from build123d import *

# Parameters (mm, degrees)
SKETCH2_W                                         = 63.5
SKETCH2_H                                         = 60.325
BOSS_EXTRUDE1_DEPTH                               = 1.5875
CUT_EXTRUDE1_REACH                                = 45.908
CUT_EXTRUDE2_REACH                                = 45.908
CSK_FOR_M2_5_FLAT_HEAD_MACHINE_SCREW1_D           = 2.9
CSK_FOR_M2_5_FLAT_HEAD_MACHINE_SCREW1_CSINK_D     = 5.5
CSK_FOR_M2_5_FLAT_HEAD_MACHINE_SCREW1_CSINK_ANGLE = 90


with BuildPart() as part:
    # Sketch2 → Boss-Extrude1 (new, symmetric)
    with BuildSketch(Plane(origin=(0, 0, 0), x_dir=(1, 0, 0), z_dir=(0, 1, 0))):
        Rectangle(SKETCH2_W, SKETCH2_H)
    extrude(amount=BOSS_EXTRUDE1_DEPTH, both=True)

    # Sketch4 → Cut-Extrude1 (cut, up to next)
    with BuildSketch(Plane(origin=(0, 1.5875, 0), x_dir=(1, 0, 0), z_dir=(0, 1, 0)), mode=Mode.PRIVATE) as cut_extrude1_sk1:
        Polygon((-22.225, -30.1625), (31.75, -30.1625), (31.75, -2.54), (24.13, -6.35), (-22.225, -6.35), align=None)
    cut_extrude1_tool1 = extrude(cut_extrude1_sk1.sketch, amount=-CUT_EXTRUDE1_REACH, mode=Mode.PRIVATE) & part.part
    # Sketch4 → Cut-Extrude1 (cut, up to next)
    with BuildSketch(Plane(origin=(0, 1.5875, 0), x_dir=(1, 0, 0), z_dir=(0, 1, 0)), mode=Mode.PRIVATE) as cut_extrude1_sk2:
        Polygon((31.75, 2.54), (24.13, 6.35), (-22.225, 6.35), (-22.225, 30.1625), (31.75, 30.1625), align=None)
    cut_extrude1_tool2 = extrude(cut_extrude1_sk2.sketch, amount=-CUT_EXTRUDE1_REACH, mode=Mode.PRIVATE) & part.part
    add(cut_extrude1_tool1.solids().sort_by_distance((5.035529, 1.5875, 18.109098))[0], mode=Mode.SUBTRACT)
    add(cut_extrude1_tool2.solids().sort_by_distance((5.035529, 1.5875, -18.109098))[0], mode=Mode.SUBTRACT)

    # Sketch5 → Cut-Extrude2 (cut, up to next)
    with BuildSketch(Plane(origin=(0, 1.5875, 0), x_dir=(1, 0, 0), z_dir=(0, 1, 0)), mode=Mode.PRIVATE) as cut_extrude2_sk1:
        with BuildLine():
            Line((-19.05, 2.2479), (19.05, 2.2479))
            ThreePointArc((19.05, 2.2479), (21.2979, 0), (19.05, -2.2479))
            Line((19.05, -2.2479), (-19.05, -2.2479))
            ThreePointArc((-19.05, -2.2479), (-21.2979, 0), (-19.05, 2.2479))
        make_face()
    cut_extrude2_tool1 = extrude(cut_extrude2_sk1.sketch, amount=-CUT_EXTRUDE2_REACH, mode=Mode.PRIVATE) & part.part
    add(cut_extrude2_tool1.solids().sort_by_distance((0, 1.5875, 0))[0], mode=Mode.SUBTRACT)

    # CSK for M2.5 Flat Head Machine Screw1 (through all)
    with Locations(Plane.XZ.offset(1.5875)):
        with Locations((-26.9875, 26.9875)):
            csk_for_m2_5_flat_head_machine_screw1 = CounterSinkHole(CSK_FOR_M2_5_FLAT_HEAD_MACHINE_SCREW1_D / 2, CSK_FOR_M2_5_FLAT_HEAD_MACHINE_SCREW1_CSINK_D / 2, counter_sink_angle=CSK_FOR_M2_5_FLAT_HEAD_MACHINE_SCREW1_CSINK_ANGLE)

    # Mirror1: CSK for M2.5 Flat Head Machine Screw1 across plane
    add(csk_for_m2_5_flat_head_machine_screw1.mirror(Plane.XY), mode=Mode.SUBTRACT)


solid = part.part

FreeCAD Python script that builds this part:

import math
import FreeCAD as App
import Part
import Sketcher

V = App.Vector
Q = App.Units.Quantity

doc = App.newDocument("Part")
body = doc.addObject("PartDesign::Body", "Body")

sketch1 = doc.addObject("Sketcher::SketchObject", "Sketch")
body.addObject(sketch1)
sketch1.AttachmentSupport = (doc.XZ_Plane, [""])
sketch1.MapMode = "FlatFace"
sketch1.addGeometry([
    Part.LineSegment(V(-32, -30, 0), V(-32, 30, 0)),
    Part.LineSegment(V(-32, 30, 0), V(32, 30, 0)),
    Part.LineSegment(V(32, 30, 0), V(32, -30, 0)),
    Part.LineSegment(V(32, -30, 0), V(-32, -30, 0)),
], False)
sketch1.addConstraint([
    Sketcher.Constraint("Coincident", 0, 2, 1, 1),
    Sketcher.Constraint("Coincident", 1, 2, 2, 1),
    Sketcher.Constraint("Coincident", 2, 2, 3, 1),
    Sketcher.Constraint("Coincident", 3, 2, 0, 1),
    Sketcher.Constraint("Vertical", 0),
    Sketcher.Constraint("Horizontal", 1),
    Sketcher.Constraint("Vertical", 2),
    Sketcher.Constraint("Horizontal", 3),
    Sketcher.Constraint("Symmetric", 0, 2, 2, 2, -1, 1),
    Sketcher.Constraint("DistanceX", 1, 1, 1, 2, Q("2.5 in")),
    Sketcher.Constraint("DistanceY", 0, 1, 0, 2, Q("2.375 in")),
])
pad1 = doc.addObject("PartDesign::Pad", "Pad")
body.addObject(pad1)
pad1.Profile = sketch1
pad1.Length = Q("0.125 in")
pad1.Midplane = True

sketch2 = doc.addObject("Sketcher::SketchObject", "Sketch001")
body.addObject(sketch2)
sketch2.AttachmentSupport = (doc.XZ_Plane, [""])
sketch2.MapMode = "FlatFace"
sketch2.AttachmentOffset = App.Placement(V(0, 0, -0.0625 * 25.4), App.Rotation())
sketch2.addGeometry([
    Part.LineSegment(V(-22, 30, 0), V(32, 30, 0)),
    Part.LineSegment(V(32, 30, 0), V(32, 3, 0)),
    Part.LineSegment(V(32, 3, 0), V(24, 6, 0)),
    Part.LineSegment(V(24, 6, 0), V(-22, 6, 0)),
    Part.LineSegment(V(-22, 6, 0), V(-22, 30, 0)),
], False)
sketch2.addConstraint([
    Sketcher.Constraint("Coincident", 0, 2, 1, 1),
    Sketcher.Constraint("Coincident", 1, 2, 2, 1),
    Sketcher.Constraint("Coincident", 2, 2, 3, 1),
    Sketcher.Constraint("Coincident", 3, 2, 4, 1),
    Sketcher.Constraint("Coincident", 4, 2, 0, 1),
    Sketcher.Constraint("Horizontal", 0),
    Sketcher.Constraint("Vertical", 1),
    Sketcher.Constraint("Horizontal", 3),
    Sketcher.Constraint("Vertical", 4),
    Sketcher.Constraint("DistanceY", -1, 1, 1, 2, Q("0.1 in")),
    Sketcher.Constraint("DistanceX", 2, 2, 1, 2, Q("0.3 in")),
    Sketcher.Constraint("DistanceX", 0, 1, 0, 2, Q("2.125 in")),
    Sketcher.Constraint("DistanceY", 4, 1, 4, 2, Q("0.9375 in")),
    Sketcher.Constraint("DistanceX", -1, 1, 0, 2, Q("1.25 in")),
    Sketcher.Constraint("DistanceY", -1, 1, 2, 2, Q("0.25 in")),
])
pocket1 = doc.addObject("PartDesign::Pocket", "Pocket")
body.addObject(pocket1)
pocket1.Profile = sketch2
pocket1.Type = "UpToFirst"
pocket1.Reversed = True

sketch3 = doc.addObject("Sketcher::SketchObject", "Sketch002")
body.addObject(sketch3)
sketch3.AttachmentSupport = (doc.XZ_Plane, [""])
sketch3.MapMode = "FlatFace"
sketch3.AttachmentOffset = App.Placement(V(0, 0, -0.0625 * 25.4), App.Rotation())
sketch3.addGeometry([
    Part.LineSegment(V(24, -6, 0), V(32, -3, 0)),
    Part.LineSegment(V(32, -3, 0), V(32, -30, 0)),
    Part.LineSegment(V(32, -30, 0), V(-22, -30, 0)),
    Part.LineSegment(V(-22, -30, 0), V(-22, -6, 0)),
    Part.LineSegment(V(-22, -6, 0), V(24, -6, 0)),
], False)
sketch3.addConstraint([
    Sketcher.Constraint("Coincident", 0, 2, 1, 1),
    Sketcher.Constraint("Coincident", 1, 2, 2, 1),
    Sketcher.Constraint("Coincident", 2, 2, 3, 1),
    Sketcher.Constraint("Coincident", 3, 2, 4, 1),
    Sketcher.Constraint("Coincident", 4, 2, 0, 1),
    Sketcher.Constraint("Vertical", 1),
    Sketcher.Constraint("Horizontal", 2),
    Sketcher.Constraint("Vertical", 3),
    Sketcher.Constraint("Horizontal", 4),
    Sketcher.Constraint("DistanceY", 0, 2, -1, 1, Q("0.1 in")),
    Sketcher.Constraint("DistanceX", 4, 2, 0, 2, Q("0.3 in")),
    Sketcher.Constraint("DistanceX", 2, 2, 2, 1, Q("2.125 in")),
    Sketcher.Constraint("DistanceY", 3, 1, 3, 2, Q("0.9375 in")),
    Sketcher.Constraint("DistanceX", -1, 1, 0, 2, Q("1.25 in")),
    Sketcher.Constraint("DistanceY", 3, 2, -1, 1, Q("0.25 in")),
])
pocket2 = doc.addObject("PartDesign::Pocket", "Pocket001")
body.addObject(pocket2)
pocket2.Profile = sketch3
pocket2.Type = "UpToFirst"
pocket2.Reversed = True

sketch4 = doc.addObject("Sketcher::SketchObject", "Sketch003")
body.addObject(sketch4)
sketch4.AttachmentSupport = (doc.XZ_Plane, [""])
sketch4.MapMode = "FlatFace"
sketch4.AttachmentOffset = App.Placement(V(0, 0, -0.0625 * 25.4), App.Rotation())
sketch4.addGeometry([
    Part.LineSegment(V(19.1, -2.2, 0), V(-19.1, -2.2, 0)),
    Part.ArcOfCircle(Part.Circle(V(-19.1, 0, 0), V(0, 0, 1), 2.2), math.radians(90), math.radians(270)),
    Part.LineSegment(V(-19.1, 2.2, 0), V(19.1, 2.2, 0)),
    Part.ArcOfCircle(Part.Circle(V(19.1, 0, 0), V(0, 0, 1), 2.2), math.radians(-90), math.radians(90)),
], False)
sketch4.addConstraint([
    Sketcher.Constraint("Tangent", 0, 2, 1, 2),
    Sketcher.Constraint("Tangent", 1, 1, 2, 1),
    Sketcher.Constraint("Tangent", 2, 2, 3, 2),
    Sketcher.Constraint("Tangent", 3, 1, 0, 1),
    Sketcher.Constraint("Horizontal", 0),
    Sketcher.Constraint("Horizontal", 2),
    Sketcher.Constraint("Symmetric", 1, 3, 3, 3, -1, 1),
    Sketcher.Constraint("DistanceX", 0, 2, 0, 1, Q("1.5 in")),
    Sketcher.Constraint("Radius", 1, Q("0.0885 in")),
])
pocket3 = doc.addObject("PartDesign::Pocket", "Pocket002")
body.addObject(pocket3)
pocket3.Profile = sketch4
pocket3.Type = "UpToFirst"
pocket3.Reversed = True

sketch5 = doc.addObject("Sketcher::SketchObject", "Sketch004")
body.addObject(sketch5)
sketch5.AttachmentSupport = (doc.XZ_Plane, [""])
sketch5.MapMode = "FlatFace"
sketch5.AttachmentOffset = App.Placement(V(0, 0, 0.0625 * 25.4), App.Rotation())
sketch5.addGeometry(Part.Circle(V(-27, 27, 0), V(0, 0, 1), 1.4), False)
sketch5.addConstraint([
    Sketcher.Constraint("Diameter", 0, Q("2.9 mm")),
    Sketcher.Constraint("DistanceX", 0, 3, -1, 1, Q("1.0625 in")),
    Sketcher.Constraint("DistanceY", -1, 1, 0, 3, Q("1.0625 in")),
])
doc.recompute()
hole = doc.addObject("PartDesign::Hole", "Hole")
body.addObject(hole)
hole.Profile = sketch5
hole.ThreadType = "None"
hole.Diameter = 2.9
hole.DepthType = "ThroughAll"
hole.HoleCutType = "Countersink"
hole.HoleCutDiameter = 5.5
hole.HoleCutCountersinkAngle = 90
doc.recompute()

mirrored = doc.addObject("PartDesign::Mirrored", "Mirrored")
body.addObject(mirrored)
mirrored.Originals = [hole]
mirrored.MirrorPlane = (doc.XY_Plane, [""])
body.Tip = mirrored

doc.recompute()
